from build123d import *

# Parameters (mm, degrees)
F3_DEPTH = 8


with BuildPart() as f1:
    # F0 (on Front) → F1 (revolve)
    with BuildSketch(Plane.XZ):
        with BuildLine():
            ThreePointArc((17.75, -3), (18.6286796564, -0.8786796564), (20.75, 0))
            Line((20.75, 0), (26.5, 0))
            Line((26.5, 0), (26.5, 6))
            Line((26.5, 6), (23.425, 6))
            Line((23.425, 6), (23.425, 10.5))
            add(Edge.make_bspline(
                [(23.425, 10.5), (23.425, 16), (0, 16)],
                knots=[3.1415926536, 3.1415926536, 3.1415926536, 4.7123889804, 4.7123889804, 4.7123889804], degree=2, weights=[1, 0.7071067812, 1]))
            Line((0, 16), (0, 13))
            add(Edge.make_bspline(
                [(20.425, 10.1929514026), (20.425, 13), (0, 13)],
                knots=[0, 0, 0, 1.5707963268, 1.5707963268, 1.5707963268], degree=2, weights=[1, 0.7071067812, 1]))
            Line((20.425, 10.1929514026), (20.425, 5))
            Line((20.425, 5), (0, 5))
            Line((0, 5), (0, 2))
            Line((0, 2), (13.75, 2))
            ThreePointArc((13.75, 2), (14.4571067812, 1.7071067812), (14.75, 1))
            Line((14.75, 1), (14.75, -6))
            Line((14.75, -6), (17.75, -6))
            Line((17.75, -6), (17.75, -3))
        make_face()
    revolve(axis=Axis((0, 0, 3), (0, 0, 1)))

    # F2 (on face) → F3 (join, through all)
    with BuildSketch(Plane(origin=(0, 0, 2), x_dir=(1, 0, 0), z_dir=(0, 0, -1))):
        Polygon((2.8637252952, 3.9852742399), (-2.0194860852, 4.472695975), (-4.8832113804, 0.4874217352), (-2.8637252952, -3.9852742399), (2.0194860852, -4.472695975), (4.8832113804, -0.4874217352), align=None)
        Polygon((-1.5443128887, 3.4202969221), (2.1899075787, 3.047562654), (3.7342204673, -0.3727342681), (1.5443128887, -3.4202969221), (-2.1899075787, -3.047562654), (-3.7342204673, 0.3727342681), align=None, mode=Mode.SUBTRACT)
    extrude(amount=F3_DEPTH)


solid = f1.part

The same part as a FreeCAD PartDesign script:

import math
import FreeCAD as App
import Part
import Sketcher
Q = App.Units.Quantity

doc = App.newDocument("Part")
params = doc.addObject("Spreadsheet::Sheet", "Params")
for row, (alias, value) in enumerate([
    ("sketch1_radius", "3 mm"),
    ("sketch1_radius2", "1 mm"),
    ("sketch1_width", "3 mm"),
    ("sketch1_height", "6 mm"),
    ("sketch1_height2", "3 mm"),
    ("revolution_angle", "360 deg"),
    ("pad1_length", "8 mm"),
], start=1):
    params.set(f"A{row}", alias)
    params.set(f"B{row}", "=" + value)
    params.setAlias(f"B{row}", alias)

body = doc.addObject("PartDesign::Body", "Body")

# Sketch on XZ plane
sketch1 = body.newObject("Sketcher::SketchObject", "Sketch")
sketch1.AttachmentSupport = (doc.getObject("XZ_Plane"), [""])
sketch1.MapMode = "FlatFace"
sketch1.addGeometry(Part.ArcOfCircle(Part.Circle(App.Vector(20.75, -3, 0), App.Vector(0, 0, 1), 3), math.radians(90), math.radians(180)), False)
sketch1.addGeometry(Part.LineSegment(App.Vector(20.75, 0, 0), App.Vector(26.5, 0, 0)), False)
sketch1.addGeometry(Part.LineSegment(App.Vector(26.5, 0, 0), App.Vector(26.5, 6, 0)), False)
sketch1.addGeometry(Part.LineSegment(App.Vector(26.5, 6, 0), App.Vector(23.425, 6, 0)), False)
sketch1.addGeometry(Part.LineSegment(App.Vector(23.425, 6, 0), App.Vector(23.425, 10.5, 0)), False)
sketch1.addGeometry(Part.BSplineCurve([App.Vector(23.425, 10.5, 0), App.Vector(23.425, 16, 0), App.Vector(0, 16, 0)], [3, 3], [3.141592654, 4.71238898], False, 2, [1, 0.707106781, 1], False), False)
sketch1.addGeometry(Part.LineSegment(App.Vector(0, 16, 0), App.Vector(0, 13, 0)), False)
sketch1.addGeometry(Part.BSplineCurve([App.Vector(20.425, 10.192951, 0), App.Vector(20.425, 13, 0), App.Vector(0, 13, 0)], [3, 3], [0, 1.570796327], False, 2, [1, 0.707106781, 1], False), False)
sketch1.addGeometry(Part.LineSegment(App.Vector(20.425, 10.192951, 0), App.Vector(20.425, 5, 0)), False)
sketch1.addGeometry(Part.LineSegment(App.Vector(20.425, 5, 0), App.Vector(0, 5, 0)), False)
sketch1.addGeometry(Part.LineSegment(App.Vector(0, 5, 0), App.Vector(0, 2, 0)), False)
sketch1.addGeometry(Part.LineSegment(App.Vector(0, 2, 0), App.Vector(13.75, 2, 0)), False)
sketch1.addGeometry(Part.ArcOfCircle(Part.Circle(App.Vector(13.75, 1, 0), App.Vector(0, 0, 1), 1), math.radians(0), math.radians(90)), False)
sketch1.addGeometry(Part.LineSegment(App.Vector(14.75, 1, 0), App.Vector(14.75, -6, 0)), False)
sketch1.addGeometry(Part.LineSegment(App.Vector(14.75, -6, 0), App.Vector(17.75, -6, 0)), False)
sketch1.addGeometry(Part.LineSegment(App.Vector(17.75, -6, 0), App.Vector(17.75, -3, 0)), False)
sketch1.addConstraint(Sketcher.Constraint("Block", 5))
sketch1.addConstraint(Sketcher.Constraint("Block", 7))
sketch1.addConstraint(Sketcher.Constraint("Coincident", 0, 1, 1, 1))
sketch1.addConstraint(Sketcher.Constraint("Coincident", 1, 2, 2, 1))
sketch1.addConstraint(Sketcher.Constraint("Coincident", 2, 2, 3, 1))
sketch1.addConstraint(Sketcher.Constraint("Coincident", 3, 2, 4, 1))
sketch1.addConstraint(Sketcher.Constraint("Coincident", 4, 2, 5, 1))
sketch1.addConstraint(Sketcher.Constraint("Coincident", 5, 2, 6, 1))
sketch1.addConstraint(Sketcher.Constraint("Coincident", 6, 2, 7, 2))
sketch1.addConstraint(Sketcher.Constraint("Coincident", 7, 1, 8, 1))
sketch1.addConstraint(Sketcher.Constraint("Coincident", 8, 2, 9, 1))
sketch1.addConstraint(Sketcher.Constraint("Coincident", 9, 2, 10, 1))
sketch1.addConstraint(Sketcher.Constraint("Coincident", 10, 2, 11, 1))
sketch1.addConstraint(Sketcher.Constraint("Coincident", 11, 2, 12, 2))
sketch1.addConstraint(Sketcher.Constraint("Coincident", 12, 1, 13, 1))
sketch1.addConstraint(Sketcher.Constraint("Coincident", 13, 2, 14, 1))
sketch1.addConstraint(Sketcher.Constraint("Coincident", 14, 2, 15, 1))
sketch1.addConstraint(Sketcher.Constraint("Coincident", 15, 2, 0, 2))
sketch1.addConstraint(Sketcher.Constraint("Horizontal", 1))
sketch1.addConstraint(Sketcher.Constraint("Vertical", 2))
sketch1.addConstraint(Sketcher.Constraint("Horizontal", 3))
sketch1.addConstraint(Sketcher.Constraint("Vertical", 4))
sketch1.addConstraint(Sketcher.Constraint("Vertical", 8))
sketch1.addConstraint(Sketcher.Constraint("Horizontal", 9))
sketch1.addConstraint(Sketcher.Constraint("Vertical", 10))
sketch1.addConstraint(Sketcher.Constraint("Horizontal", 11))
sketch1.addConstraint(Sketcher.Constraint("Vertical", 13))
sketch1.addConstraint(Sketcher.Constraint("Horizontal", 14))
sketch1.addConstraint(Sketcher.Constraint("Vertical", 15))
sketch1.addConstraint(Sketcher.Constraint("PointOnObject", 0, 1, -1))
sketch1.addConstraint(Sketcher.Constraint("PointOnObject", 9, 2, -2))
sketch1.addConstraint(Sketcher.Constraint("Radius", 0, Q("3 mm")))
sketch1.addConstraint(Sketcher.Constraint("Radius", 12, Q("1 mm")))
sketch1.addConstraint(Sketcher.Constraint("DistanceX", 14, 1, 14, 2, Q("3 mm")))
sketch1.addConstraint(Sketcher.Constraint("DistanceY", 2, 1, 2, 2, Q("6 mm")))
sketch1.addConstraint(Sketcher.Constraint("DistanceY", 10, 2, 10, 1, Q("3 mm")))
sketch1.addConstraint(Sketcher.Constraint("DistanceY", 13, 2, 13, 1, Q("7 mm")))
sketch1.addConstraint(Sketcher.Constraint("DistanceY", 15, 1, 15, 2, Q("3 mm")))
sketch1.addConstraint(Sketcher.Constraint("DistanceY", -1, 1, 12, 3, Q("1 mm")))
sketch1.addConstraint(Sketcher.Constraint("DistanceY", -1, 1, 12, 1, Q("1 mm")))
sketch1.addConstraint(Sketcher.Constraint("DistanceX", 12, 3, 0, 1, Q("7 mm")))
sketch1.addConstraint(Sketcher.Constraint("DistanceX", 11, 2, 0, 1, Q("7 mm")))
sketch1.addConstraint(Sketcher.Constraint("DistanceX", 1, 1, 1, 2, Q("5.75 mm")))
sketch1.addConstraint(Sketcher.Constraint("DistanceX", 11, 1, 11, 2, Q("13.75 mm")))
sketch1.setExpression("Constraints[31]", "Params.sketch1_radius")
sketch1.setExpression("Constraints[32]", "Params.sketch1_radius2")
sketch1.setExpression("Constraints[33]", "Params.sketch1_width")
sketch1.setExpression("Constraints[34]", "Params.sketch1_height")
sketch1.setExpression("Constraints[35]", "Params.sketch1_height2")
revolution = body.newObject("PartDesign::Revolution", "Revolution")
revolution.Profile = sketch1
revolution.ReferenceAxis = (sketch1, ["V_Axis"])
revolution.setExpression("Angle", "Params.revolution_angle")

# Sketch on XY plane
sketch2 = body.newObject("Sketcher::SketchObject", "Sketch001")
sketch2.AttachmentSupport = (doc.getObject("XY_Plane"), [""])
sketch2.MapMode = "FlatFace"
sketch2.AttachmentOffset = App.Placement(App.Vector(0, 0, 2), App.Rotation())
sketch2.addGeometry(Part.LineSegment(App.Vector(2.9, -4, 0), App.Vector(-2, -4.5, 0)), False)
sketch2.addGeometry(Part.LineSegment(App.Vector(-2, -4.5, 0), App.Vector(-4.9, -0.5, 0)), False)
sketch2.addGeometry(Part.LineSegment(App.Vector(-4.9, -0.5, 0), App.Vector(-2.9, 4, 0)), False)
sketch2.addGeometry(Part.LineSegment(App.Vector(-2.9, 4, 0), App.Vector(2, 4.5, 0)), False)
sketch2.addGeometry(Part.LineSegment(App.Vector(2, 4.5, 0), App.Vector(4.9, 0.5, 0)), False)
sketch2.addGeometry(Part.LineSegment(App.Vector(4.9, 0.5, 0), App.Vector(2.9, -4, 0)), False)
sketch2.addGeometry(Part.LineSegment(App.Vector(-3.7, -0.4, 0), App.Vector(-1.5, -3.4, 0)), False)
sketch2.addGeometry(Part.LineSegment(App.Vector(-1.5, -3.4, 0), App.Vector(2.2, -3, 0)), False)
sketch2.addGeometry(Part.LineSegment(App.Vector(2.2, -3, 0), App.Vector(3.7, 0.4, 0)), False)
sketch2.addGeometry(Part.LineSegment(App.Vector(3.7, 0.4, 0), App.Vector(1.5, 3.4, 0)), False)
sketch2.addGeometry(Part.LineSegment(App.Vector(1.5, 3.4, 0), App.Vector(-2.2, 3, 0)), False)
sketch2.addGeometry(Part.LineSegment(App.Vector(-2.2, 3, 0), App.Vector(-3.7, -0.4, 0)), False)
sketch2.addConstraint(Sketcher.Constraint("Coincident", 0, 2, 1, 1))
sketch2.addConstraint(Sketcher.Constraint("Coincident", 1, 2, 2, 1))
sketch2.addConstraint(Sketcher.Constraint("Coincident", 2, 2, 3, 1))
sketch2.addConstraint(Sketcher.Constraint("Coincident", 3, 2, 4, 1))
sketch2.addConstraint(Sketcher.Constraint("Coincident", 4, 2, 5, 1))
sketch2.addConstraint(Sketcher.Constraint("Coincident", 5, 2, 0, 1))
sketch2.addConstraint(Sketcher.Constraint("Coincident", 6, 2, 7, 1))
sketch2.addConstraint(Sketcher.Constraint("Coincident", 7, 2, 8, 1))
sketch2.addConstraint(Sketcher.Constraint("Coincident", 8, 2, 9, 1))
sketch2.addConstraint(Sketcher.Constraint("Coincident", 9, 2, 10, 1))
sketch2.addConstraint(Sketcher.Constraint("Coincident", 10, 2, 11, 1))
sketch2.addConstraint(Sketcher.Constraint("Coincident", 11, 2, 6, 1))
sketch2.addConstraint(Sketcher.Constraint("Symmetric", 0, 2, 3, 2, -1, 1))
sketch2.addConstraint(Sketcher.Constraint("Symmetric", 1, 2, 4, 2, -1, 1))
sketch2.addConstraint(Sketcher.Constraint("Symmetric", 2, 2, 5, 2, -1, 1))
sketch2.addConstraint(Sketcher.Constraint("Symmetric", 6, 2, 9, 2, -1, 1))
sketch2.addConstraint(Sketcher.Constraint("Symmetric", 7, 2, 10, 2, -1, 1))
sketch2.addConstraint(Sketcher.Constraint("Symmetric", 8, 2, 11, 2, -1, 1))
sketch2.addConstraint(Sketcher.Constraint("Parallel", 4, 6))
sketch2.addConstraint(Sketcher.Constraint("Parallel", 3, 7))
sketch2.addConstraint(Sketcher.Constraint("Parallel", 5, 8))
sketch2.addConstraint(Sketcher.Constraint("Equal", 0, 1))
sketch2.addConstraint(Sketcher.Constraint("Equal", 1, 2))
sketch2.addConstraint(Sketcher.Constraint("Equal", 6, 7))
sketch2.addConstraint(Sketcher.Constraint("Equal", 7, 8))
sketch2.addConstraint(Sketcher.Constraint("DistanceY", 0, 2, 6, 2, Q("1.052399 mm")))
sketch2.addConstraint(Sketcher.Constraint("DistanceX", 1, 2, 6, 2, Q("3.338898 mm")))
sketch2.addConstraint(Sketcher.Constraint("DistanceX", 1, 2, -1, 1, Q("4.883211 mm")))
sketch2.addConstraint(Sketcher.Constraint("DistanceY", 1, 2, -1, 1, Q("0.487422 mm")))
sketch2.addConstraint(Sketcher.Constraint("DistanceX", -1, 1, 8, 2, Q("3.73422 mm")))
pad1 = body.newObject("PartDesign::Pad", "Pad")
pad1.Profile = sketch2
pad1.setExpression("Length", "Params.pad1_length")
pad1.Reversed = True

doc.recompute()
